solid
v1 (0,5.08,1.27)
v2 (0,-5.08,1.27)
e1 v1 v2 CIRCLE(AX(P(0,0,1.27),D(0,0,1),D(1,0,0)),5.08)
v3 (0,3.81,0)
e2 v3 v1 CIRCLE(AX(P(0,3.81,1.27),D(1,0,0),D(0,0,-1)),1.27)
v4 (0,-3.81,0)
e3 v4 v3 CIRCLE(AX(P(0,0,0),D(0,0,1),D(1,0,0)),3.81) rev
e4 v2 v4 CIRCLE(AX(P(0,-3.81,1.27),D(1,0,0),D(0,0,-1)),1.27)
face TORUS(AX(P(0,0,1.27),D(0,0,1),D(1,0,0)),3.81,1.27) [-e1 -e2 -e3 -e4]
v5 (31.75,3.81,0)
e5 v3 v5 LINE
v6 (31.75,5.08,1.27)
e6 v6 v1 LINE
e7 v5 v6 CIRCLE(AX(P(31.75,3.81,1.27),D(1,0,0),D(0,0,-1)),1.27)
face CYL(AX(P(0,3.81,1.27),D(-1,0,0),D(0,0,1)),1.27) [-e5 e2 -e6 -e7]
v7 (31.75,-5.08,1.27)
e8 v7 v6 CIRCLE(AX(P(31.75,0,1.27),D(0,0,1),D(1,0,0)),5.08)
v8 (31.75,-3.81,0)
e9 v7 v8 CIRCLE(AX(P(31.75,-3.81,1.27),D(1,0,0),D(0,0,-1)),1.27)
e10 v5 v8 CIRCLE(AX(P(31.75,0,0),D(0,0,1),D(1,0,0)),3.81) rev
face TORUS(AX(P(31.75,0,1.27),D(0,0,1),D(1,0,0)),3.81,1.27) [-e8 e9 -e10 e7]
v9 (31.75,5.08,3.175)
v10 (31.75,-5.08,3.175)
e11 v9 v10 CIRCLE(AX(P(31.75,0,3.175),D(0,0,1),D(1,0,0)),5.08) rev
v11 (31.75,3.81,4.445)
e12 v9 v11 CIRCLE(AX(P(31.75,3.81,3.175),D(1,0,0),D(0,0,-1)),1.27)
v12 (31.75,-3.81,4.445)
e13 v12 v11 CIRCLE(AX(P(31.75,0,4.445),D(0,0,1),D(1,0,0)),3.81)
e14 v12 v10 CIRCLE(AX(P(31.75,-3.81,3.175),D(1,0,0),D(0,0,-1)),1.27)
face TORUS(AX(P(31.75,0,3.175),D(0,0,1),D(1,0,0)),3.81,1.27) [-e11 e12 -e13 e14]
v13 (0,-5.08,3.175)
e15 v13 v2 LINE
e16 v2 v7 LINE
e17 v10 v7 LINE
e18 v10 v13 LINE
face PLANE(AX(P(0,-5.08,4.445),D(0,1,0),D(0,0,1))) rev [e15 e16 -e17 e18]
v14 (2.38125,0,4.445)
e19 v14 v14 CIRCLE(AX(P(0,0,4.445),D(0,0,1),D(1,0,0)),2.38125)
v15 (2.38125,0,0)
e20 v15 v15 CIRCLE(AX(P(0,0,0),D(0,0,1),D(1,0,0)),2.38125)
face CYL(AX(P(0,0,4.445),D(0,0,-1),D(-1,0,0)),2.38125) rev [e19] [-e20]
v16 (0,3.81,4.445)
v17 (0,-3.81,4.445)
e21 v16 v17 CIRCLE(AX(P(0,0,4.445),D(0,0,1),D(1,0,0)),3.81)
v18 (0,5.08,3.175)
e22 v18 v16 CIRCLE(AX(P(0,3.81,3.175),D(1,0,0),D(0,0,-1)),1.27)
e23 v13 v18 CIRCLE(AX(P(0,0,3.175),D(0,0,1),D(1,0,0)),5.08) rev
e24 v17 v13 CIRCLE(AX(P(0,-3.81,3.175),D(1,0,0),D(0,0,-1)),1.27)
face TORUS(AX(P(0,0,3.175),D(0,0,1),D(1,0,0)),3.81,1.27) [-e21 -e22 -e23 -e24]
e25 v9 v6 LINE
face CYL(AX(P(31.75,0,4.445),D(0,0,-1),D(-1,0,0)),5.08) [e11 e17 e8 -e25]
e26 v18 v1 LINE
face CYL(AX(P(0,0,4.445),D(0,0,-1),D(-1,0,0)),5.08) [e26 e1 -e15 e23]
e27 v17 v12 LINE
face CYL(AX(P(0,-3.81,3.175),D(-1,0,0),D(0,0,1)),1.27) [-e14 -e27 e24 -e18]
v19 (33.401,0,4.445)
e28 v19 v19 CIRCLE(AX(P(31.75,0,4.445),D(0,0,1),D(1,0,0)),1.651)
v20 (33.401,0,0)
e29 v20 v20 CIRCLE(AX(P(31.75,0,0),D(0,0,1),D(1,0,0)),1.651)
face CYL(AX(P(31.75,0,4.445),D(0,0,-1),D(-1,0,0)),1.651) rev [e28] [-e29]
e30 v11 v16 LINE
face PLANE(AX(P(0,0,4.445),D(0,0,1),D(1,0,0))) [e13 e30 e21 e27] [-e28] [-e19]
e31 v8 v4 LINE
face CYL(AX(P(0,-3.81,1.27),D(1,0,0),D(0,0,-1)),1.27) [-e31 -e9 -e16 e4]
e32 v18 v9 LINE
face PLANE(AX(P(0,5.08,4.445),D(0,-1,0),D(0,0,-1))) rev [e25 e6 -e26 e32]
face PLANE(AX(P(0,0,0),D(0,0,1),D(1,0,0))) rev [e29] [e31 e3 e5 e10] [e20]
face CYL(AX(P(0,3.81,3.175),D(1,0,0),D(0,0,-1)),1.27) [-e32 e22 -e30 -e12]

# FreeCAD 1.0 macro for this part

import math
import FreeCAD as App
import Part
import Sketcher
Q = App.Units.Quantity


def edges_at(feature, points):
    """Names of the edges that pass closest to the given points."""
    edges = feature.Shape.Edges
    near = lambda p: min(range(len(edges)), key=lambda i: edges[i].distToShape(Part.Vertex(*p))[0])
    return sorted({f"Edge{near(p) + 1}" for p in points})

doc = App.newDocument("Part")
body = doc.addObject("PartDesign::Body", "Body")

# Sketch on XY plane
sketch1 = body.newObject("Sketcher::SketchObject", "Sketch")
sketch1.AttachmentSupport = (doc.getObject("XY_Plane"), [""])
sketch1.MapMode = "FlatFace"
sketch1.addGeometry([
    Part.LineSegment(App.Vector(31.8, 5.1, 0), App.Vector(0, 5.1, 0)),  # 0
    Part.ArcOfCircle(Part.Circle(App.Vector(0, 0, 0), App.Vector(0, 0, 1), 5.1), math.radians(90), math.radians(270)),  # 1
    Part.LineSegment(App.Vector(0, -5.1, 0), App.Vector(31.8, -5.1, 0)),  # 2
    Part.ArcOfCircle(Part.Circle(App.Vector(31.8, 0, 0), App.Vector(0, 0, 1), 5.1), math.radians(-90), math.radians(90)),  # 3
    Part.Circle(App.Vector(31.8, 0, 0), App.Vector(0, 0, 1), 1.7),  # 4
    Part.Circle(App.Vector(0, 0, 0), App.Vector(0, 0, 1), 2.4),  # 5
], False)
sketch1.addConstraint([
    Sketcher.Constraint("Tangent", 0, 2, 1, 1),
    Sketcher.Constraint("Tangent", 1, 2, 2, 1),
    Sketcher.Constraint("Tangent", 2, 2, 3, 1),
    Sketcher.Constraint("Tangent", 3, 2, 0, 1),
    Sketcher.Constraint("Horizontal", 0),
    Sketcher.Constraint("Horizontal", 2),
    Sketcher.Constraint("Coincident", 1, 3, -1, 1),
    Sketcher.Constraint("Coincident", 5, 3, -1, 1),
    Sketcher.Constraint("Coincident", 4, 3, 3, 3),
    Sketcher.Constraint("Radius", 1, Q("0.2 in")),
    Sketcher.Constraint("Diameter", 4, Q("0.13 in")),
    Sketcher.Constraint("Diameter", 5, Q("0.1875 in")),
    Sketcher.Constraint("DistanceX", 0, 2, 0, 1, Q("1.25 in")),
])
pad1 = body.newObject("PartDesign::Pad", "Pad")
pad1.Profile = sketch1
pad1.Length = Q("0.175 in")
doc.recompute()

fillet = body.newObject("PartDesign::Fillet", "Fillet")
fillet.Base = (pad1, edges_at(pad1, [
    (36.83, 0, 4.445),
    (15.875, 5.08, 4.445),
    (-5.08, 0, 4.445),
    (15.875, 5.08, 0),
    (36.83, 0, 0),
    (15.875, -5.08, 0),
    (-5.08, 0, 0),
    (15.875, -5.08, 4.445),
]))
fillet.Radius = Q("0.05 in")

doc.recompute()
